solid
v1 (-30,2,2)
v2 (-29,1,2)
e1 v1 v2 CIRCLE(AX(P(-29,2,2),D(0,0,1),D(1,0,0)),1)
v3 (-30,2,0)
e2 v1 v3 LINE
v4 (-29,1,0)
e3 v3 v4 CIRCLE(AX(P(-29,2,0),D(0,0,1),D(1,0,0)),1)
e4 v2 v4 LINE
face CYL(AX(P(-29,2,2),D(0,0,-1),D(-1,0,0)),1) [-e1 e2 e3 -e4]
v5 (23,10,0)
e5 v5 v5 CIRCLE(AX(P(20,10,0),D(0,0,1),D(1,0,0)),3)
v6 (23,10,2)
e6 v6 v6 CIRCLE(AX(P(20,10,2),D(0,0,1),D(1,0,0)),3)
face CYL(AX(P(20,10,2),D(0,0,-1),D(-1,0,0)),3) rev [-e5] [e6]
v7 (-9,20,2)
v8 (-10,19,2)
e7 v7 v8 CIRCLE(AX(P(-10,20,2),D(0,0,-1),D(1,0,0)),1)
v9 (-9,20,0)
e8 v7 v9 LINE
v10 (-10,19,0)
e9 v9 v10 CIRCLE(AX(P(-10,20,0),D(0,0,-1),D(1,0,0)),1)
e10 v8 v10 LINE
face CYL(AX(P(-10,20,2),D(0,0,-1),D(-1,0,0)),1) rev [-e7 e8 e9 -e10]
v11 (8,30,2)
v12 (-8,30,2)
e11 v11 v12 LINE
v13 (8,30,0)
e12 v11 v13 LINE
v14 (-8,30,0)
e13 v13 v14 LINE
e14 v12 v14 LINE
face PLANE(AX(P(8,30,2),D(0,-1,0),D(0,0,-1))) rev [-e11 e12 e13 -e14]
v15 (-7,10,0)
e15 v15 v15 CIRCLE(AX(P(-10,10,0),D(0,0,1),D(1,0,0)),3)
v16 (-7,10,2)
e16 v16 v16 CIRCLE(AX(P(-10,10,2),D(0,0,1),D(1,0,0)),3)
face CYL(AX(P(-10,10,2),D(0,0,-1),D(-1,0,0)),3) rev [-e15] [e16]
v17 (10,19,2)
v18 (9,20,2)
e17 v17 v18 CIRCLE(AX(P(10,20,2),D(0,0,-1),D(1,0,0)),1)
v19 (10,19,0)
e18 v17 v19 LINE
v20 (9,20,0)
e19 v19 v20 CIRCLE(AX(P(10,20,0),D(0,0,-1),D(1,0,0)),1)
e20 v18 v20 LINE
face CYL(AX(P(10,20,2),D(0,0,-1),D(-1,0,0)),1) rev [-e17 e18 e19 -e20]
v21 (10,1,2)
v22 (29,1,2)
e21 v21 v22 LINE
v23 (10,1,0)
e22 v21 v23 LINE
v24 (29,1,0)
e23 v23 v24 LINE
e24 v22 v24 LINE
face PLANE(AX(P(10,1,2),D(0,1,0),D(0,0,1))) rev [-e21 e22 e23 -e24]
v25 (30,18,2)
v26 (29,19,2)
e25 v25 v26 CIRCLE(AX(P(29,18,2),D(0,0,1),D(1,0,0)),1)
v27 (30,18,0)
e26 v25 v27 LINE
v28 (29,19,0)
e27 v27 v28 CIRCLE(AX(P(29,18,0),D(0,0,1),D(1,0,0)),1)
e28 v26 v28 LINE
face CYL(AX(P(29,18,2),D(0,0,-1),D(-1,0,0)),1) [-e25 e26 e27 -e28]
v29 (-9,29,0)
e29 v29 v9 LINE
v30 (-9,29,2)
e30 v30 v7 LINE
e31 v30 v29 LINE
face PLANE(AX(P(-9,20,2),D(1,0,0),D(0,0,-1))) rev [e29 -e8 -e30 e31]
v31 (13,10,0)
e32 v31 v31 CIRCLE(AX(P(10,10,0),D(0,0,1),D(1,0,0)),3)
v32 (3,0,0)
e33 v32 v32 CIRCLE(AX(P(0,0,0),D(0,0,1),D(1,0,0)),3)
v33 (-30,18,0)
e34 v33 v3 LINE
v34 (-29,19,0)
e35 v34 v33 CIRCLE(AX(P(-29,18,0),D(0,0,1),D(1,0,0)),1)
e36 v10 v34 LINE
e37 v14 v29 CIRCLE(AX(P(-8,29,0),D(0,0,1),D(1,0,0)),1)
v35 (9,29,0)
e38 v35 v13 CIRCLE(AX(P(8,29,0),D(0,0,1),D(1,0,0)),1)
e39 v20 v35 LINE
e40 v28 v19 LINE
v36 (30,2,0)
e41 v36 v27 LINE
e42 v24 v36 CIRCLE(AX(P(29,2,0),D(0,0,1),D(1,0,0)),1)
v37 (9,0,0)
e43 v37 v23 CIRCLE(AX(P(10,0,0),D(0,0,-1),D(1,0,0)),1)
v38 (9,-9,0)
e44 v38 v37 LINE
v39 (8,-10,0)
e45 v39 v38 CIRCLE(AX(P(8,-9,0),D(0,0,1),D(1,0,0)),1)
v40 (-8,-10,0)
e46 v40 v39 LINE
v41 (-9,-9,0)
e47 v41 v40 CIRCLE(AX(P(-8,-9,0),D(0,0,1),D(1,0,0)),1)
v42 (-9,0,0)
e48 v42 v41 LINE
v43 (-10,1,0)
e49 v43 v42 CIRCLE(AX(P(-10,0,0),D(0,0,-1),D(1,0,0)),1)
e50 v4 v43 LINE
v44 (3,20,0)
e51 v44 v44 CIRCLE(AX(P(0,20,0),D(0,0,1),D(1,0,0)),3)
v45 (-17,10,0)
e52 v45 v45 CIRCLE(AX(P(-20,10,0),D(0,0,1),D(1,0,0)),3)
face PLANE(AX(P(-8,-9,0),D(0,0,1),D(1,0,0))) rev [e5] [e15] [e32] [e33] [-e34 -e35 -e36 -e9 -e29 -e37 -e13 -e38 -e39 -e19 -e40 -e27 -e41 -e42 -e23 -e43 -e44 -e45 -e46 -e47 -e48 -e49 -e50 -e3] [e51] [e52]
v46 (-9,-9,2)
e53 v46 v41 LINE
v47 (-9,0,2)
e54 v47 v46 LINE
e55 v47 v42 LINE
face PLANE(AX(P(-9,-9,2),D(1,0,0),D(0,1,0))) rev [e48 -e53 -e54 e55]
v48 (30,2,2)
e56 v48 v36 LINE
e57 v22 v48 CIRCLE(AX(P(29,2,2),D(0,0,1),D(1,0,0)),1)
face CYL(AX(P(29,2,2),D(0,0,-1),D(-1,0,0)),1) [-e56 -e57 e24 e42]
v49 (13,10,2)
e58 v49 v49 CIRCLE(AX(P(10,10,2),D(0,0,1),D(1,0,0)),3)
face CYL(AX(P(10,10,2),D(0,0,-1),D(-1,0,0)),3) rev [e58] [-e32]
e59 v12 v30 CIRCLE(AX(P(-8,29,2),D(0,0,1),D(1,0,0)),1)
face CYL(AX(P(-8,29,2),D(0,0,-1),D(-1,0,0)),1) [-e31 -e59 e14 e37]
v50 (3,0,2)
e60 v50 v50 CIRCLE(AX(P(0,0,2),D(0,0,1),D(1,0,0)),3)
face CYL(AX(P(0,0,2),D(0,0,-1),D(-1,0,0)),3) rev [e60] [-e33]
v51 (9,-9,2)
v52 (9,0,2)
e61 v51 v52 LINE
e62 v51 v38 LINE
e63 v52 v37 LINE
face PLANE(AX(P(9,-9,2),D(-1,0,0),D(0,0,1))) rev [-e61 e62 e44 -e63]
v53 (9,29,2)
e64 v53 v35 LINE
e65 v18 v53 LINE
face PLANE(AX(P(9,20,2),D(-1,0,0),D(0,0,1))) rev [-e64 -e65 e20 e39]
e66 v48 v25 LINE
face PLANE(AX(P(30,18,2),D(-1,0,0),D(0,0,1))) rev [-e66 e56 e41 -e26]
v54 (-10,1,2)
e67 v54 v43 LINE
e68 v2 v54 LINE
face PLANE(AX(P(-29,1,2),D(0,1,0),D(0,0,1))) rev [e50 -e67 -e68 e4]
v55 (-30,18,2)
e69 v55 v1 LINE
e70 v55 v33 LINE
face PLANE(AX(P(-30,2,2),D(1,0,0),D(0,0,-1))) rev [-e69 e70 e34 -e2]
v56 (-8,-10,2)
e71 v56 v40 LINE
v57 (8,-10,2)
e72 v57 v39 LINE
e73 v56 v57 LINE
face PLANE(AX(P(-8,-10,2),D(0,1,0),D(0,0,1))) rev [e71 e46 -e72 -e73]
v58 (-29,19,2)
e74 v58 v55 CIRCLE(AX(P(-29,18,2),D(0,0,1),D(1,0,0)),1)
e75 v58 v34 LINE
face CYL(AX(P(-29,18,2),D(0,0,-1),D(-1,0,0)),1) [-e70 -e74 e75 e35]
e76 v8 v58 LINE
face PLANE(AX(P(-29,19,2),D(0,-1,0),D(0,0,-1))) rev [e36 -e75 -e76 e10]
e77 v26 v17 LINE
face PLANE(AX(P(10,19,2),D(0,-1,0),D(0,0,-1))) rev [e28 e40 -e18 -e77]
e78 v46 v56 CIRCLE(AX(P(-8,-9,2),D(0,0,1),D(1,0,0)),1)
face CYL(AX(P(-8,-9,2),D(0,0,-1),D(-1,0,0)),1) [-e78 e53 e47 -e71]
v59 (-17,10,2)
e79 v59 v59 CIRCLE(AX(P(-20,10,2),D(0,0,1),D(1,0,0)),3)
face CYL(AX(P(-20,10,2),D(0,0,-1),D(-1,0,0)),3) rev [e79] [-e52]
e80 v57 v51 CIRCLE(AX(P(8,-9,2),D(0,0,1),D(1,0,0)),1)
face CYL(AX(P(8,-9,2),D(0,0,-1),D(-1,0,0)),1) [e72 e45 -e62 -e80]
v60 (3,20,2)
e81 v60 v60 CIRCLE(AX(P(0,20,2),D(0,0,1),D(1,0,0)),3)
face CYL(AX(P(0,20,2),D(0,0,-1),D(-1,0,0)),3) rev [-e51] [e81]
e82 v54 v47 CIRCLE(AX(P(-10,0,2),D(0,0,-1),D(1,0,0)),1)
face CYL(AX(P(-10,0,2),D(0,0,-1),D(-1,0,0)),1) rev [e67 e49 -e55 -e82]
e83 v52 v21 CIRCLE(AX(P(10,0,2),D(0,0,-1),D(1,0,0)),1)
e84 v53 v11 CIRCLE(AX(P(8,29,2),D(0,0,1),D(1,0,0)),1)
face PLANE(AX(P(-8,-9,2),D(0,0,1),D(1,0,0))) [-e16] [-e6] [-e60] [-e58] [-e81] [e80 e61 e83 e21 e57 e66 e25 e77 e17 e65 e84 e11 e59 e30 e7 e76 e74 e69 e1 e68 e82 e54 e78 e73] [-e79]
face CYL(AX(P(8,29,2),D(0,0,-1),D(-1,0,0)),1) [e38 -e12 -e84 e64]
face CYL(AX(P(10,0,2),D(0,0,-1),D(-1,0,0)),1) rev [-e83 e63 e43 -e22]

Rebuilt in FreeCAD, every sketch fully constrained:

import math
import FreeCAD as App
import Part
import Sketcher

doc = App.newDocument("Part")
body = doc.addObject("PartDesign::Body", "Body")

sketch1 = doc.addObject("Sketcher::SketchObject", "Sketch")
body.addObject(sketch1)
sketch1.AttachmentSupport = (doc.XY_Plane, [""])
sketch1.MapMode = "FlatFace"
sketch1.addGeometry(Part.LineSegment(App.Vector(-9, 0, 0), App.Vector(-9, -9, 0)), False)
sketch1.addGeometry(Part.ArcOfCircle(Part.Circle(App.Vector(-8, -9, 0), App.Vector(0, 0, 1), 1), math.radians(-180), math.radians(-90)), False)
sketch1.addGeometry(Part.LineSegment(App.Vector(-8, -10, 0), App.Vector(8, -10, 0)), False)
sketch1.addGeometry(Part.ArcOfCircle(Part.Circle(App.Vector(8, -9, 0), App.Vector(0, 0, 1), 1), math.radians(-90), math.radians(0)), False)
sketch1.addGeometry(Part.LineSegment(App.Vector(9, -9, 0), App.Vector(9, 0, 0)), False)
sketch1.addGeometry(Part.ArcOfCircle(Part.Circle(App.Vector(10, 0, 0), App.Vector(0, 0, 1), 1), math.radians(90), math.radians(180)), False)
sketch1.addGeometry(Part.LineSegment(App.Vector(10, 1, 0), App.Vector(29, 1, 0)), False)
sketch1.addGeometry(Part.ArcOfCircle(Part.Circle(App.Vector(29, 2, 0), App.Vector(0, 0, 1), 1), math.radians(-90), math.radians(0)), False)
sketch1.addGeometry(Part.LineSegment(App.Vector(30, 2, 0), App.Vector(30, 18, 0)), False)
sketch1.addGeometry(Part.ArcOfCircle(Part.Circle(App.Vector(29, 18, 0), App.Vector(0, 0, 1), 1), math.radians(0), math.radians(90)), False)
sketch1.addGeometry(Part.LineSegment(App.Vector(29, 19, 0), App.Vector(10, 19, 0)), False)
sketch1.addGeometry(Part.ArcOfCircle(Part.Circle(App.Vector(10, 20, 0), App.Vector(0, 0, 1), 1), math.radians(-180), math.radians(-90)), False)
sketch1.addGeometry(Part.LineSegment(App.Vector(9, 20, 0), App.Vector(9, 29, 0)), False)
sketch1.addGeometry(Part.ArcOfCircle(Part.Circle(App.Vector(8, 29, 0), App.Vector(0, 0, 1), 1), math.radians(0), math.radians(90)), False)
sketch1.addGeometry(Part.LineSegment(App.Vector(8, 30, 0), App.Vector(-8, 30, 0)), False)
sketch1.addGeometry(Part.ArcOfCircle(Part.Circle(App.Vector(-8, 29, 0), App.Vector(0, 0, 1), 1), math.radians(90), math.radians(180)), False)
sketch1.addGeometry(Part.LineSegment(App.Vector(-9, 29, 0), App.Vector(-9, 20, 0)), False)
sketch1.addGeometry(Part.ArcOfCircle(Part.Circle(App.Vector(-10, 20, 0), App.Vector(0, 0, 1), 1), math.radians(-90), math.radians(0)), False)
sketch1.addGeometry(Part.LineSegment(App.Vector(-10, 19, 0), App.Vector(-29, 19, 0)), False)
sketch1.addGeometry(Part.ArcOfCircle(Part.Circle(App.Vector(-29, 18, 0), App.Vector(0, 0, 1), 1), math.radians(90), math.radians(180)), False)
sketch1.addGeometry(Part.LineSegment(App.Vector(-30, 18, 0), App.Vector(-30, 2, 0)), False)
sketch1.addGeometry(Part.ArcOfCircle(Part.Circle(App.Vector(-29, 2, 0), App.Vector(0, 0, 1), 1), math.radians(-180), math.radians(-90)), False)
sketch1.addGeometry(Part.LineSegment(App.Vector(-29, 1, 0), App.Vector(-10, 1, 0)), False)
sketch1.addGeometry(Part.ArcOfCircle(Part.Circle(App.Vector(-10, 0, 0), App.Vector(0, 0, 1), 1), math.radians(0), math.radians(90)), False)
sketch1.addGeometry(Part.Circle(App.Vector(0, 0, 0), App.Vector(0, 0, 1), 3), False)
sketch1.addGeometry(Part.Circle(App.Vector(20, 10, 0), App.Vector(0, 0, 1), 3), False)
sketch1.addGeometry(Part.Circle(App.Vector(10, 10, 0), App.Vector(0, 0, 1), 3), False)
sketch1.addGeometry(Part.Circle(App.Vector(-10, 10, 0), App.Vector(0, 0, 1), 3), False)
sketch1.addGeometry(Part.Circle(App.Vector(-20, 10, 0), App.Vector(0, 0, 1), 3), False)
sketch1.addGeometry(Part.Circle(App.Vector(0, 20, 0), App.Vector(0, 0, 1), 3), False)
sketch1.addConstraint(Sketcher.Constraint("Tangent", 0, 2, 1, 1))
sketch1.addConstraint(Sketcher.Constraint("Tangent", 1, 2, 2, 1))
sketch1.addConstraint(Sketcher.Constraint("Tangent", 2, 2, 3, 1))
sketch1.addConstraint(Sketcher.Constraint("Tangent", 3, 2, 4, 1))
sketch1.addConstraint(Sketcher.Constraint("Tangent", 4, 2, 5, 2))
sketch1.addConstraint(Sketcher.Constraint("Tangent", 5, 1, 6, 1))
sketch1.addConstraint(Sketcher.Constraint("Tangent", 6, 2, 7, 1))
sketch1.addConstraint(Sketcher.Constraint("Tangent", 7, 2, 8, 1))
sketch1.addConstraint(Sketcher.Constraint("Tangent", 8, 2, 9, 1))
sketch1.addConstraint(Sketcher.Constraint("Tangent", 9, 2, 10, 1))
sketch1.addConstraint(Sketcher.Constraint("Tangent", 10, 2, 11, 2))
sketch1.addConstraint(Sketcher.Constraint("Tangent", 11, 1, 12, 1))
sketch1.addConstraint(Sketcher.Constraint("Tangent", 12, 2, 13, 1))
sketch1.addConstraint(Sketcher.Constraint("Tangent", 13, 2, 14, 1))
sketch1.addConstraint(Sketcher.Constraint("Tangent", 14, 2, 15, 1))
sketch1.addConstraint(Sketcher.Constraint("Tangent", 15, 2, 16, 1))
sketch1.addConstraint(Sketcher.Constraint("Tangent", 16, 2, 17, 2))
sketch1.addConstraint(Sketcher.Constraint("Tangent", 17, 1, 18, 1))
sketch1.addConstraint(Sketcher.Constraint("Tangent", 18, 2, 19, 1))
sketch1.addConstraint(Sketcher.Constraint("Tangent", 19, 2, 20, 1))
sketch1.addConstraint(Sketcher.Constraint("Tangent", 20, 2, 21, 1))
sketch1.addConstraint(Sketcher.Constraint("Tangent", 21, 2, 22, 1))
sketch1.addConstraint(Sketcher.Constraint("Tangent", 22, 2, 23, 2))
sketch1.addConstraint(Sketcher.Constraint("Tangent", 23, 1, 0, 1))
sketch1.addConstraint(Sketcher.Constraint("Vertical", 0))
sketch1.addConstraint(Sketcher.Constraint("Horizontal", 2))
sketch1.addConstraint(Sketcher.Constraint("Vertical", 4))
sketch1.addConstraint(Sketcher.Constraint("Horizontal", 6))
sketch1.addConstraint(Sketcher.Constraint("Vertical", 8))
sketch1.addConstraint(Sketcher.Constraint("Horizontal", 10))
sketch1.addConstraint(Sketcher.Constraint("Vertical", 12))
sketch1.addConstraint(Sketcher.Constraint("Horizontal", 14))
sketch1.addConstraint(Sketcher.Constraint("Vertical", 16))
sketch1.addConstraint(Sketcher.Constraint("Horizontal", 18))
sketch1.addConstraint(Sketcher.Constraint("Vertical", 20))
sketch1.addConstraint(Sketcher.Constraint("Horizontal", 22))
sketch1.addConstraint(Sketcher.Constraint("Coincident", 24, 3, -1, 1))
sketch1.addConstraint(Sketcher.Constraint("Equal", 1, 3))
sketch1.addConstraint(Sketcher.Constraint("Equal", 3, 5))
sketch1.addConstraint(Sketcher.Constraint("Equal", 5, 7))
sketch1.addConstraint(Sketcher.Constraint("Equal", 7, 9))
sketch1.addConstraint(Sketcher.Constraint("Equal", 9, 11))
sketch1.addConstraint(Sketcher.Constraint("Equal", 11, 13))
sketch1.addConstraint(Sketcher.Constraint("Equal", 13, 15))
sketch1.addConstraint(Sketcher.Constraint("Equal", 15, 17))
sketch1.addConstraint(Sketcher.Constraint("Equal", 17, 19))
sketch1.addConstraint(Sketcher.Constraint("Equal", 19, 21))
sketch1.addConstraint(Sketcher.Constraint("Equal", 21, 23))
sketch1.addConstraint(Sketcher.Constraint("Equal", 24, 25))
sketch1.addConstraint(Sketcher.Constraint("Equal", 25, 26))
sketch1.addConstraint(Sketcher.Constraint("Equal", 26, 27))
sketch1.addConstraint(Sketcher.Constraint("Equal", 27, 28))
sketch1.addConstraint(Sketcher.Constraint("Equal", 28, 29))
sketch1.addConstraint(Sketcher.Constraint("Symmetric", 5, 3, 23, 3, -1, 1))
sketch1.addConstraint(Sketcher.Constraint("Symmetric", 11, 3, 17, 3, -2))
sketch1.addConstraint(Sketcher.Constraint("Symmetric", 7, 3, 21, 3, -2))
sketch1.addConstraint(Sketcher.Constraint("Symmetric", 26, 3, 27, 3, -2))
sketch1.addConstraint(Sketcher.Constraint("Symmetric", 25, 3, 28, 3, -2))
sketch1.addConstraint(Sketcher.Constraint("PointOnObject", 29, 3, -2))
sketch1.addConstraint(Sketcher.Constraint("Horizontal", 25, 3, 26, 3))
sketch1.addConstraint(Sketcher.Constraint("Horizontal", 17, 3, 29, 3))
sketch1.addConstraint(Sketcher.Constraint("Vertical", 5, 3, 11, 3))
sketch1.addConstraint(Sketcher.Constraint("Vertical", 11, 3, 26, 3))
sketch1.addConstraint(Sketcher.Constraint("Equal", 14, 8))
sketch1.addConstraint(Sketcher.Constraint("Equal", 4, 12))
sketch1.addConstraint(Sketcher.Constraint("Diameter", 24, 6.0))
sketch1.addConstraint(Sketcher.Constraint("Radius", 1, 1.0))
sketch1.addConstraint(Sketcher.Constraint("DistanceX", 2, 1, 2, 2, 16.0))
sketch1.addConstraint(Sketcher.Constraint("DistanceX", 6, 1, 6, 2, 19.0))
sketch1.addConstraint(Sketcher.Constraint("DistanceY", 0, 2, 0, 1, 9.0))
sketch1.addConstraint(Sketcher.Constraint("DistanceX", -1, 1, 25, 3, 20.0))
sketch1.addConstraint(Sketcher.Constraint("DistanceY", -1, 1, 25, 3, 10.0))
pad1 = doc.addObject("PartDesign::Pad", "Pad")
body.addObject(pad1)
pad1.Profile = sketch1
pad1.Length = 2

doc.recompute()
